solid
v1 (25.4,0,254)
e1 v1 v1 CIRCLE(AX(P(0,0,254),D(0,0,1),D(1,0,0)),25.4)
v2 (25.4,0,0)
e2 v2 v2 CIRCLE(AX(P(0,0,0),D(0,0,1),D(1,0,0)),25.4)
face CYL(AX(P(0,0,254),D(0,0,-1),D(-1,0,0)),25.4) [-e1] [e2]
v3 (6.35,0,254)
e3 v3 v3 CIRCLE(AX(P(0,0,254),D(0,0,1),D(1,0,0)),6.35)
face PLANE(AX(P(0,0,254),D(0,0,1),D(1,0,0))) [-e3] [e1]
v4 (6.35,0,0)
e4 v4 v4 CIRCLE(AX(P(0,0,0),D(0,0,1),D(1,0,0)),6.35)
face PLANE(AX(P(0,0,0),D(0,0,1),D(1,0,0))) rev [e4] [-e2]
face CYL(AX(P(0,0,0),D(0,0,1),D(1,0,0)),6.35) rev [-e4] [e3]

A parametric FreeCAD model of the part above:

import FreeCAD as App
import Part
import Sketcher

V = App.Vector
Q = App.Units.Quantity

doc = App.newDocument("Part")
body = doc.addObject("PartDesign::Body", "Body")

sketch1 = body.newObject("Sketcher::SketchObject", "Sketch")
sketch1.AttachmentSupport = (doc.getObject("XY_Plane"), [""])
sketch1.MapMode = "FlatFace"
sketch1.addGeometry(Part.Circle(V(0, 0, 0), V(0, 0, 1), 25), False)
sketch1.addConstraint([
    Sketcher.Constraint("Coincident", 0, 3, -1, 1),
    Sketcher.Constraint("Diameter", 0, Q("2 in")),
])
pad1 = body.newObject("PartDesign::Pad", "Pad")
pad1.Profile = sketch1
pad1.Length = Q("10 in")

sketch2 = body.newObject("Sketcher::SketchObject", "Sketch001")
sketch2.AttachmentSupport = (doc.getObject("XY_Plane"), [""])
sketch2.MapMode = "FlatFace"
sketch2.AttachmentOffset = App.Placement(V(0, 0, 10 * 25.4), App.Rotation())
sketch2.addGeometry(Part.Circle(V(0, 0, 0), V(0, 0, 1), 6), False)
sketch2.addConstraint([
    Sketcher.Constraint("Coincident", 0, 3, -1, 1),
    Sketcher.Constraint("Diameter", 0, Q("0.5 in")),
])
pocket1 = body.newObject("PartDesign::Pocket", "Pocket")
pocket1.Profile = sketch2
pocket1.Type = "ThroughAll"

doc.recompute()
